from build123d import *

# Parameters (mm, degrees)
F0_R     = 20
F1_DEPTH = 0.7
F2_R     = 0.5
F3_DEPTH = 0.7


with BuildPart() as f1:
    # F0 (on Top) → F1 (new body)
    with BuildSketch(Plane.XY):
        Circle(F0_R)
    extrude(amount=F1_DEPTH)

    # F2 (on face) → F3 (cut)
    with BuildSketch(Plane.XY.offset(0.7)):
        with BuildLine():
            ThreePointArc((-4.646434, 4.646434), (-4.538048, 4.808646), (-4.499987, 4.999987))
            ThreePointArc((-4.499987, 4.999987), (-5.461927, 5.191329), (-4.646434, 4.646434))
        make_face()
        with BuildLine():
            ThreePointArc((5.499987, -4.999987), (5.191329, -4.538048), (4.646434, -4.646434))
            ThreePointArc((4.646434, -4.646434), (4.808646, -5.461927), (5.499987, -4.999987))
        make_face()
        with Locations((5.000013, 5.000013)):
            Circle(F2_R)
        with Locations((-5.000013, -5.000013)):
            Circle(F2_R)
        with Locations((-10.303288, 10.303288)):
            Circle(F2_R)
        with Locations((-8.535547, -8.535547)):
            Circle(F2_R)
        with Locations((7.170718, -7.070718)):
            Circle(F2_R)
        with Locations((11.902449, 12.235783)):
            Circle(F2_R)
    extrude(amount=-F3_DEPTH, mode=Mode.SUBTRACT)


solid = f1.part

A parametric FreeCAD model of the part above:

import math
import FreeCAD as App
import Part
import Sketcher

V = App.Vector

doc = App.newDocument("Part")
body = doc.addObject("PartDesign::Body", "Body")

# Sketch on XY plane
sketch1 = body.newObject("Sketcher::SketchObject", "Sketch")
sketch1.AttachmentSupport = (doc.getObject("XY_Plane"), [""])
sketch1.MapMode = "FlatFace"
sketch1.addGeometry(Part.Circle(V(0, 0, 0), V(0, 0, 1), 20), False)
sketch1.addConstraint(Sketcher.Constraint("Coincident", 0, 3, -1, 1))
sketch1.addConstraint(Sketcher.Constraint("Diameter", 0, 40.0))
pad1 = body.newObject("PartDesign::Pad", "Pad")
pad1.Profile = sketch1
pad1.Length = 0.7

# Sketch on XY plane
sketch2 = body.newObject("Sketcher::SketchObject", "Sketch001")
sketch2.AttachmentSupport = (doc.getObject("XY_Plane"), [""])
sketch2.MapMode = "FlatFace"
sketch2.AttachmentOffset = App.Placement(V(0, 0, 0.7), App.Rotation())
sketch2.addGeometry(Part.ArcOfCircle(Part.Circle(V(-4.999995, 4.999991, 0), V(0, 0, 1), 0.500008), math.radians(-44.99967), math.radians(-0.000483)), False)
sketch2.addGeometry(Part.ArcOfCircle(Part.Circle(V(-4.999987, 4.999988, 0), V(0, 0, 1), 0.5), math.radians(-0.00009), math.radians(314.999937)), False)
sketch2.addGeometry(Part.ArcOfCircle(Part.Circle(V(4.999987, -4.999988, 0), V(0, 0, 1), 0.5), math.radians(0.000069), math.radians(134.999958)), False)
sketch2.addGeometry(Part.ArcOfCircle(Part.Circle(V(4.999987, -4.999987, 0), V(0, 0, 1), 0.5), math.radians(134.999996), math.radians(360.00003)), False)
sketch2.addGeometry(Part.Circle(V(5.000013, 5.000013, 0), V(0, 0, 1), 0.5), False)
sketch2.addGeometry(Part.Circle(V(-5.000013, -5.000013, 0), V(0, 0, 1), 0.5), False)
sketch2.addGeometry(Part.Circle(V(-10.303288, 10.303288, 0), V(0, 0, 1), 0.5), False)
sketch2.addGeometry(Part.Circle(V(-8.535547, -8.535547, 0), V(0, 0, 1), 0.5), False)
sketch2.addGeometry(Part.Circle(V(7.170718, -7.070718, 0), V(0, 0, 1), 0.5), False)
sketch2.addGeometry(Part.Circle(V(11.902449, 12.235783, 0), V(0, 0, 1), 0.5), False)
sketch2.addConstraint(Sketcher.Constraint("Coincident", 0, 1, 1, 2))
sketch2.addConstraint(Sketcher.Constraint("Coincident", 1, 1, 0, 2))
sketch2.addConstraint(Sketcher.Constraint("Tangent", 2, 1, 3, 2))
sketch2.addConstraint(Sketcher.Constraint("Coincident", 3, 1, 2, 2))
sketch2.addConstraint(Sketcher.Constraint("Equal", 1, 2))
sketch2.addConstraint(Sketcher.Constraint("Equal", 3, 4))
sketch2.addConstraint(Sketcher.Constraint("Equal", 4, 5))
sketch2.addConstraint(Sketcher.Constraint("Equal", 5, 6))
sketch2.addConstraint(Sketcher.Constraint("Equal", 6, 7))
sketch2.addConstraint(Sketcher.Constraint("Equal", 7, 8))
sketch2.addConstraint(Sketcher.Constraint("Equal", 8, 9))
sketch2.addConstraint(Sketcher.Constraint("Symmetric", 0, 3, 2, 3, -1, 1))
sketch2.addConstraint(Sketcher.Constraint("Symmetric", 4, 3, 5, 3, -1, 1))
sketch2.addConstraint(Sketcher.Constraint("Symmetric", 0, 1, 3, 1, -1, 1))
sketch2.addConstraint(Sketcher.Constraint("Horizontal", 3, 3, 2, 1))
sketch2.addConstraint(Sketcher.Constraint("Diameter", 4, 1.0))
sketch2.addConstraint(Sketcher.Constraint("DistanceX", 1, 3, 4, 3, 10.0))
sketch2.addConstraint(Sketcher.Constraint("DistanceY", 3, 3, 4, 3, 10.0))
sketch2.addConstraint(Sketcher.Constraint("DistanceX", 6, 3, 1, 3, 5.303301))
sketch2.addConstraint(Sketcher.Constraint("DistanceY", 1, 3, 6, 3, 5.3033))
sketch2.addConstraint(Sketcher.Constraint("DistanceY", 1, 1, 6, 3, 5.303301))
sketch2.addConstraint(Sketcher.Constraint("DistanceY", -1, 1, 0, 3, 4.999991))
sketch2.addConstraint(Sketcher.Constraint("DistanceY", 8, 3, -1, 1, 7.070718))
sketch2.addConstraint(Sketcher.Constraint("DistanceX", -1, 1, 9, 3, 11.902449))
sketch2.addConstraint(Sketcher.Constraint("DistanceY", 7, 3, 2, 3, 3.535559))
sketch2.addConstraint(Sketcher.Constraint("DistanceX", 7, 3, 1, 3, 3.53556))
sketch2.addConstraint(Sketcher.Constraint("DistanceX", 2, 3, 8, 3, 2.170731))
sketch2.addConstraint(Sketcher.Constraint("DistanceY", 4, 3, 9, 3, 7.23577))
sketch2.addConstraint(Sketcher.Constraint("DistanceX", 3, 3, 9, 3, 6.902462))
sketch2.addConstraint(Sketcher.Constraint("DistanceX", 0, 3, 0, 1, 0.353561))
pocket1 = body.newObject("PartDesign::Pocket", "Pocket")
pocket1.Profile = sketch2
pocket1.Length = 0.7

doc.recompute()
